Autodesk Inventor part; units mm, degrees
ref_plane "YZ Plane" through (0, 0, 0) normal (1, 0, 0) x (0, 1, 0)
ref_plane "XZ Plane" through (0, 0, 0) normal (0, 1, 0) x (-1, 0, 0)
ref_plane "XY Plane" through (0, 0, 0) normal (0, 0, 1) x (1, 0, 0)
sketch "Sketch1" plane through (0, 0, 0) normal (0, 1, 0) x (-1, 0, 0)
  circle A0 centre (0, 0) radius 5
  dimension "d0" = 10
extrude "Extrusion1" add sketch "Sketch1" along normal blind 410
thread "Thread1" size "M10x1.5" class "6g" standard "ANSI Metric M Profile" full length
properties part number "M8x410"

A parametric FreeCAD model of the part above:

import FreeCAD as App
import Part
import Sketcher
from FreeCAD import Vector
Q = App.Units.Quantity

doc = App.newDocument("Part")
body = doc.addObject("PartDesign::Body", "Body")

# Sketch on XZ plane
sketch1 = doc.addObject("Sketcher::SketchObject", "Sketch")
body.addObject(sketch1)
sketch1.AttachmentSupport = (doc.XZ_Plane, [""])
sketch1.MapMode = "FlatFace"
sketch1.addGeometry(Part.Circle(Vector(0, 0, 0), Vector(0, 0, 1), 5), False)
sketch1.addConstraint([
    Sketcher.Constraint("Coincident", 0, 3, -1, 1),
    Sketcher.Constraint("Diameter", 0, Q("10 mm")),
])
pad1 = doc.addObject("PartDesign::Pad", "Pad")
body.addObject(pad1)
pad1.Profile = sketch1
pad1.Length = 410
pad1.Reversed = True

doc.recompute()
